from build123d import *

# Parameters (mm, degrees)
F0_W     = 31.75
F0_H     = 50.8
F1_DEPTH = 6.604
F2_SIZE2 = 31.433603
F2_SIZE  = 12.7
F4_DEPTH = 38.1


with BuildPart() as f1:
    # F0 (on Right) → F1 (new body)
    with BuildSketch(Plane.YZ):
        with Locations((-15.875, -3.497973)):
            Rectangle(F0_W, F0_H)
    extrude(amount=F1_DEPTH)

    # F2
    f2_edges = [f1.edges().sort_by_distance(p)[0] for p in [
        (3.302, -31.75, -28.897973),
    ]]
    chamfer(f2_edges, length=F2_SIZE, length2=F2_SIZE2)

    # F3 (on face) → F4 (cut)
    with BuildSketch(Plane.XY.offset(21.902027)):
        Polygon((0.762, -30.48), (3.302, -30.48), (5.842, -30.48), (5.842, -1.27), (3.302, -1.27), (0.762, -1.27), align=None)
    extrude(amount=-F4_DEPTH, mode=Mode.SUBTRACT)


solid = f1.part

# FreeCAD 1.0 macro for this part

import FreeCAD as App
import Part
import Sketcher

V = App.Vector
Q = App.Units.Quantity


def edges_at(feature, points):
    """Names of the edges that pass closest to the given points."""
    edges = feature.Shape.Edges
    near = lambda p: min(range(len(edges)), key=lambda i: edges[i].distToShape(Part.Vertex(*p))[0])
    return sorted({f"Edge{near(p) + 1}" for p in points})

doc = App.newDocument("Part")
body = doc.addObject("PartDesign::Body", "Body")

# Sketch on YZ plane
sketch1 = body.newObject("Sketcher::SketchObject", "Sketch")
sketch1.AttachmentSupport = (doc.getObject("YZ_Plane"), [""])
sketch1.MapMode = "FlatFace"
sketch1.addGeometry(Part.LineSegment(V(-32, 22, 0), V(-32, -29, 0)), False)
sketch1.addGeometry(Part.LineSegment(V(-32, -29, 0), V(0, -29, 0)), False)
sketch1.addGeometry(Part.LineSegment(V(0, -29, 0), V(0, 22, 0)), False)
sketch1.addGeometry(Part.LineSegment(V(0, 22, 0), V(-32, 22, 0)), False)
sketch1.addConstraint(Sketcher.Constraint("Coincident", 0, 2, 1, 1))
sketch1.addConstraint(Sketcher.Constraint("Coincident", 1, 2, 2, 1))
sketch1.addConstraint(Sketcher.Constraint("Coincident", 2, 2, 3, 1))
sketch1.addConstraint(Sketcher.Constraint("Coincident", 3, 2, 0, 1))
sketch1.addConstraint(Sketcher.Constraint("Vertical", 0))
sketch1.addConstraint(Sketcher.Constraint("Horizontal", 1))
sketch1.addConstraint(Sketcher.Constraint("Vertical", 2))
sketch1.addConstraint(Sketcher.Constraint("Horizontal", 3))
sketch1.addConstraint(Sketcher.Constraint("PointOnObject", 1, 2, -2))
sketch1.addConstraint(Sketcher.Constraint("DistanceY", 0, 2, 0, 1, Q("2 in")))
sketch1.addConstraint(Sketcher.Constraint("DistanceX", 1, 1, 1, 2, Q("1.25 in")))
sketch1.addConstraint(Sketcher.Constraint("DistanceY", 0, 2, -1, 1, 28.897973))
pad1 = body.newObject("PartDesign::Pad", "Pad")
pad1.Profile = sketch1
pad1.Length = Q("0.26 in")
doc.recompute()

chamfer = body.newObject("PartDesign::Chamfer", "Chamfer")
chamfer.Base = (pad1, edges_at(pad1, [(3.302, -31.75, -28.898)]))
chamfer.ChamferType = "Two distances"
chamfer.Size = Q("0.5 in")
chamfer.Size2 = 31.433603

# Sketch on XY plane
sketch2 = body.newObject("Sketcher::SketchObject", "Sketch001")
sketch2.AttachmentSupport = (doc.getObject("XY_Plane"), [""])
sketch2.MapMode = "FlatFace"
sketch2.AttachmentOffset = App.Placement(V(0, 0, 21.902027), App.Rotation())
sketch2.addGeometry(Part.LineSegment(V(1, -30, 0), V(6, -30, 0)), False)
sketch2.addGeometry(Part.LineSegment(V(6, -30, 0), V(6, -1, 0)), False)
sketch2.addGeometry(Part.LineSegment(V(6, -1, 0), V(1, -1, 0)), False)
sketch2.addGeometry(Part.LineSegment(V(1, -1, 0), V(1, -30, 0)), False)
sketch2.addConstraint(Sketcher.Constraint("Coincident", 0, 2, 1, 1))
sketch2.addConstraint(Sketcher.Constraint("Coincident", 1, 2, 2, 1))
sketch2.addConstraint(Sketcher.Constraint("Coincident", 2, 2, 3, 1))
sketch2.addConstraint(Sketcher.Constraint("Coincident", 3, 2, 0, 1))
sketch2.addConstraint(Sketcher.Constraint("Horizontal", 0))
sketch2.addConstraint(Sketcher.Constraint("Vertical", 1))
sketch2.addConstraint(Sketcher.Constraint("Horizontal", 2))
sketch2.addConstraint(Sketcher.Constraint("Vertical", 3))
sketch2.addConstraint(Sketcher.Constraint("DistanceX", 0, 1, 0, 2, Q("0.2 in")))
sketch2.addConstraint(Sketcher.Constraint("DistanceY", 1, 1, 1, 2, Q("1.15 in")))
sketch2.addConstraint(Sketcher.Constraint("DistanceY", 0, 2, -1, 1, Q("1.2 in")))
sketch2.addConstraint(Sketcher.Constraint("DistanceX", -1, 1, 0, 2, Q("0.23 in")))
pocket1 = body.newObject("PartDesign::Pocket", "Pocket")
pocket1.Profile = sketch2
pocket1.Length = Q("1.5 in")

doc.recompute()
